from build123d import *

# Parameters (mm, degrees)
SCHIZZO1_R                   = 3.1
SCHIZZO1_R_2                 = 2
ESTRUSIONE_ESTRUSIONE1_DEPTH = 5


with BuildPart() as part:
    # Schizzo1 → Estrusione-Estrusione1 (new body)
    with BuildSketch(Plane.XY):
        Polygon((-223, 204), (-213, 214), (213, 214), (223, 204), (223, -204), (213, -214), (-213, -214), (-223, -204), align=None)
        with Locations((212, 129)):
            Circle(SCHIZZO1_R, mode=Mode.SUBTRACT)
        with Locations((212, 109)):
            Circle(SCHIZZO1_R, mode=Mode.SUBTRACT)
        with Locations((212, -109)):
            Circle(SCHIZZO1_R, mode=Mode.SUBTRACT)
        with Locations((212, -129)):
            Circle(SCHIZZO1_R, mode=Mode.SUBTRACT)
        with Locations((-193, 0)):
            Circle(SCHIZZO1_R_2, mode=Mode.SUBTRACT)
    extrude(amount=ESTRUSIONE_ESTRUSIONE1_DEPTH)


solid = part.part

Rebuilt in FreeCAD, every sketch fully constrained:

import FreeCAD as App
import Part
import Sketcher

V = App.Vector
Q = App.Units.Quantity

doc = App.newDocument("Part")
body = doc.addObject("PartDesign::Body", "Body")

# Sketch on XY plane
sketch1 = body.newObject("Sketcher::SketchObject", "Sketch")
sketch1.AttachmentSupport = (doc.getObject("XY_Plane"), [""])
sketch1.MapMode = "FlatFace"
sketch1.addGeometry([
    Part.LineSegment(V(-213, 214, 0), V(-223, 204, 0)),  # 0
    Part.LineSegment(V(-223, 204, 0), V(-223, -204, 0)),  # 1
    Part.LineSegment(V(-223, -204, 0), V(-213, -214, 0)),  # 2
    Part.LineSegment(V(-213, -214, 0), V(213, -214, 0)),  # 3
    Part.LineSegment(V(213, -214, 0), V(223, -204, 0)),  # 4
    Part.LineSegment(V(223, -204, 0), V(223, 204, 0)),  # 5
    Part.LineSegment(V(223, 204, 0), V(213, 214, 0)),  # 6
    Part.LineSegment(V(213, 214, 0), V(-213, 214, 0)),  # 7
    Part.Circle(V(212, -129, 0), V(0, 0, 1), 3.1),  # 8
    Part.Circle(V(212, -109, 0), V(0, 0, 1), 3.1),  # 9
    Part.Circle(V(212, 109, 0), V(0, 0, 1), 3.1),  # 10
    Part.Circle(V(212, 129, 0), V(0, 0, 1), 3.1),  # 11
    Part.Circle(V(-193, 0, 0), V(0, 0, 1), 2),  # 12
], False)
sketch1.addConstraint([
    Sketcher.Constraint("Coincident", 0, 2, 1, 1),
    Sketcher.Constraint("Coincident", 1, 2, 2, 1),
    Sketcher.Constraint("Coincident", 2, 2, 3, 1),
    Sketcher.Constraint("Coincident", 3, 2, 4, 1),
    Sketcher.Constraint("Coincident", 4, 2, 5, 1),
    Sketcher.Constraint("Coincident", 5, 2, 6, 1),
    Sketcher.Constraint("Coincident", 6, 2, 7, 1),
    Sketcher.Constraint("Coincident", 7, 2, 0, 1),
    Sketcher.Constraint("Vertical", 1),
    Sketcher.Constraint("Horizontal", 3),
    Sketcher.Constraint("Vertical", 5),
    Sketcher.Constraint("Horizontal", 7),
    Sketcher.Constraint("Equal", 8, 9),
    Sketcher.Constraint("Equal", 9, 10),
    Sketcher.Constraint("Equal", 10, 11),
    Sketcher.Constraint("Symmetric", 0, 2, 4, 2, -1, 1),
    Sketcher.Constraint("Symmetric", 2, 2, 6, 2, -1, 1),
    Sketcher.Constraint("Symmetric", 9, 3, 10, 3, -1),
    Sketcher.Constraint("Symmetric", 8, 3, 11, 3, -1),
    Sketcher.Constraint("PointOnObject", 12, 3, -1),
    Sketcher.Constraint("Perpendicular", 0, 2),
    Sketcher.Constraint("Perpendicular", 2, 4),
    Sketcher.Constraint("Perpendicular", 4, 6),
    Sketcher.Constraint("Horizontal", 1, 2, 4, 2),
    Sketcher.Constraint("Vertical", 8, 3, 9, 3),
    Sketcher.Constraint("Vertical", 3, 2, 6, 2),
    Sketcher.Constraint("Diameter", 12, Q("4 mm")),
    Sketcher.Constraint("Diameter", 8, Q("6.2 mm")),
    Sketcher.Constraint("DistanceX", 3, 1, 3, 2, Q("426 mm")),
    Sketcher.Constraint("DistanceY", 1, 2, 1, 1, Q("408 mm")),
    Sketcher.Constraint("DistanceX", -1, 1, 8, 3, Q("212 mm")),
    Sketcher.Constraint("DistanceY", 8, 3, -1, 1, Q("129 mm")),
    Sketcher.Constraint("DistanceY", 9, 3, -1, 1, Q("109 mm")),
    Sketcher.Constraint("DistanceX", 12, 3, -1, 1, Q("193 mm")),
    Sketcher.Constraint("DistanceX", 0, 2, -1, 1, Q("223 mm")),
])
pad1 = body.newObject("PartDesign::Pad", "Pad")
pad1.Profile = sketch1
pad1.Length = 5

doc.recompute()
